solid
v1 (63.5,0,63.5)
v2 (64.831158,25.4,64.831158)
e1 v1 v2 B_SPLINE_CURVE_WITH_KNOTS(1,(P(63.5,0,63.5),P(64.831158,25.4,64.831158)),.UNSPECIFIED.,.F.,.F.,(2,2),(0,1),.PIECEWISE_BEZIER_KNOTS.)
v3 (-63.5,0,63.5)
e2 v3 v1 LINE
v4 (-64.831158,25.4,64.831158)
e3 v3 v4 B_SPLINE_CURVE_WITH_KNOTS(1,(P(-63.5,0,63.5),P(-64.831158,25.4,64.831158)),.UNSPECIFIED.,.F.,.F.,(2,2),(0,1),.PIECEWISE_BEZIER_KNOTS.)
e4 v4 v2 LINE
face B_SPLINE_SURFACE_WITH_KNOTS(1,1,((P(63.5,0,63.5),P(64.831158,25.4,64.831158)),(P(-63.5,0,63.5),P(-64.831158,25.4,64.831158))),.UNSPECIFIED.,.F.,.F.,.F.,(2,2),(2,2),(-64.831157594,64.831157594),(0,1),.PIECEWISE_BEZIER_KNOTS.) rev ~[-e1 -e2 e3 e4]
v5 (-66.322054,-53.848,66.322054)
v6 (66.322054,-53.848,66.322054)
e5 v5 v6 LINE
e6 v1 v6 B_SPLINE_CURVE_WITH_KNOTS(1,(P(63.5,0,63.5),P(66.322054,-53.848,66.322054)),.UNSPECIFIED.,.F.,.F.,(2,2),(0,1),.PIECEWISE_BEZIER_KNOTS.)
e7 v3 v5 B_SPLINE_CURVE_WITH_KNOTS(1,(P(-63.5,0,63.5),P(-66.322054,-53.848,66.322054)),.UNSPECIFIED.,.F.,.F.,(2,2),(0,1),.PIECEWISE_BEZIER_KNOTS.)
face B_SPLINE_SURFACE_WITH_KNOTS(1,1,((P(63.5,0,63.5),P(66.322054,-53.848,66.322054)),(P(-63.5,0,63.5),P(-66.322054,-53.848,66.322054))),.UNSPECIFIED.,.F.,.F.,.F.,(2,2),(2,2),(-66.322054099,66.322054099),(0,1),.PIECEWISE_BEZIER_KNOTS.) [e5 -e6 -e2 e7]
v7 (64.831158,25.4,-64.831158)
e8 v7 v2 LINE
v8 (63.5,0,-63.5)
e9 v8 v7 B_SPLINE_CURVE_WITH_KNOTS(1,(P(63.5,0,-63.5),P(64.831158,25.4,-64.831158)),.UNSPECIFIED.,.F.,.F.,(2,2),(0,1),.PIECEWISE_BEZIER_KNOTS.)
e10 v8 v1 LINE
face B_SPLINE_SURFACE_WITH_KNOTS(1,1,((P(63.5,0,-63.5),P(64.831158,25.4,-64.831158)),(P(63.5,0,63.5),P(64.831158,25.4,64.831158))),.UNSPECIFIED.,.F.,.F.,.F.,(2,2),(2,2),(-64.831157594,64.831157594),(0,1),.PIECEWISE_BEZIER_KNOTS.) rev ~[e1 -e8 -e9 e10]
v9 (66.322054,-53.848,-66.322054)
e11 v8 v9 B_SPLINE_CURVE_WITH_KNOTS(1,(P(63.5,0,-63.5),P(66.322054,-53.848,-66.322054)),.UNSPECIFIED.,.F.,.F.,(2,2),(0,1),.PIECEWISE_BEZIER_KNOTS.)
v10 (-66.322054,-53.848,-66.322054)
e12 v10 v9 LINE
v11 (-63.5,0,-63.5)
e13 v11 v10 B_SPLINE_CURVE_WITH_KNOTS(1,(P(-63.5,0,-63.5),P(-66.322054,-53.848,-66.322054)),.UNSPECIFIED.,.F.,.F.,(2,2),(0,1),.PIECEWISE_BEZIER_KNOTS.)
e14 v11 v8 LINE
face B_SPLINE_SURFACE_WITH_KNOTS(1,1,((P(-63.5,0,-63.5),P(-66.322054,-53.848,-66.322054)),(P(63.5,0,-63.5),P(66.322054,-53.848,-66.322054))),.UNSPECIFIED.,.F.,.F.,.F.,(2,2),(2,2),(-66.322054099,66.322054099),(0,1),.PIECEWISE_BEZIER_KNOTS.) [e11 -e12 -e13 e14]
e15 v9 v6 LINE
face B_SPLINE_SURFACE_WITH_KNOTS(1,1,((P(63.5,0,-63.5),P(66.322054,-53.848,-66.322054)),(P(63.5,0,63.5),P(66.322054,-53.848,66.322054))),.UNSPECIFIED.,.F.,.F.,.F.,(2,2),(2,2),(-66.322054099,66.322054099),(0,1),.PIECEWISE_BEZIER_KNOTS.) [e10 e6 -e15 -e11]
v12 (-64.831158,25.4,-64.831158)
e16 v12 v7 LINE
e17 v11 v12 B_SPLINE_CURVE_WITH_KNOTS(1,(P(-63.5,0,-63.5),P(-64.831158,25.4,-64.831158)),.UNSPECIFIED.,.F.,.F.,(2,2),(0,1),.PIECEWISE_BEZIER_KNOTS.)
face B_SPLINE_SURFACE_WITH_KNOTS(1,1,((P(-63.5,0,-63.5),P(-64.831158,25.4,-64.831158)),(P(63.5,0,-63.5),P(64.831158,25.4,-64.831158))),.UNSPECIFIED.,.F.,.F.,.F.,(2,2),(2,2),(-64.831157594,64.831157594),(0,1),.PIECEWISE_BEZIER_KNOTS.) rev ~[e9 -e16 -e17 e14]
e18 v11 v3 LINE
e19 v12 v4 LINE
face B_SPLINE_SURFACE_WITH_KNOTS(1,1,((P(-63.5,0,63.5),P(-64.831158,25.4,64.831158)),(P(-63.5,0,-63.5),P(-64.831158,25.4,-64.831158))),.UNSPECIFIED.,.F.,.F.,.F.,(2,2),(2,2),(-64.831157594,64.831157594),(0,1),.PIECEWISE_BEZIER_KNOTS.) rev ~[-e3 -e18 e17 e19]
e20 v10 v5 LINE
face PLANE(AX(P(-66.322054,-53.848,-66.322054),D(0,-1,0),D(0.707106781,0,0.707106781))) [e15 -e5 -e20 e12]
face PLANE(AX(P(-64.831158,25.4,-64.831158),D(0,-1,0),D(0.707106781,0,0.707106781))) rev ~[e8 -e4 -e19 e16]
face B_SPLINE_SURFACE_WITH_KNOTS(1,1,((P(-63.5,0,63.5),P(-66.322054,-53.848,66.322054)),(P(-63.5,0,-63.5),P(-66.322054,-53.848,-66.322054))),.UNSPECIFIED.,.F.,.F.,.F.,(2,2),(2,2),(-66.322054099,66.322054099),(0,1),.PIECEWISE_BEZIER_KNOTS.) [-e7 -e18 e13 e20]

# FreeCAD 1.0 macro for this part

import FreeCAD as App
import Part
import Sketcher
Q = App.Units.Quantity

doc = App.newDocument("Part")
body = doc.addObject("PartDesign::Body", "Body")

# Sketch on XZ plane
sketch1 = doc.addObject("Sketcher::SketchObject", "Sketch")
body.addObject(sketch1)
sketch1.AttachmentSupport = (doc.XZ_Plane, [""])
sketch1.MapMode = "FlatFace"
sketch1.addGeometry(Part.LineSegment(App.Vector(-64, 64, 0), App.Vector(-64, -64, 0)), False)
sketch1.addGeometry(Part.LineSegment(App.Vector(-64, -64, 0), App.Vector(64, -64, 0)), False)
sketch1.addGeometry(Part.LineSegment(App.Vector(64, -64, 0), App.Vector(64, 64, 0)), False)
sketch1.addGeometry(Part.LineSegment(App.Vector(64, 64, 0), App.Vector(-64, 64, 0)), False)
sketch1.addConstraint(Sketcher.Constraint("Coincident", 0, 2, 1, 1))
sketch1.addConstraint(Sketcher.Constraint("Coincident", 1, 2, 2, 1))
sketch1.addConstraint(Sketcher.Constraint("Coincident", 2, 2, 3, 1))
sketch1.addConstraint(Sketcher.Constraint("Coincident", 3, 2, 0, 1))
sketch1.addConstraint(Sketcher.Constraint("Vertical", 0))
sketch1.addConstraint(Sketcher.Constraint("Horizontal", 1))
sketch1.addConstraint(Sketcher.Constraint("Vertical", 2))
sketch1.addConstraint(Sketcher.Constraint("Horizontal", 3))
sketch1.addConstraint(Sketcher.Constraint("Symmetric", 0, 2, 2, 2, -1, 1))
sketch1.addConstraint(Sketcher.Constraint("Equal", 3, 0))
sketch1.addConstraint(Sketcher.Constraint("DistanceX", 1, 1, 1, 2, Q("5 in")))
pad1 = doc.addObject("PartDesign::Pad", "Pad")
body.addObject(pad1)
pad1.Profile = sketch1
pad1.Length = Q("2.12 in")
pad1.TaperAngle = 3
pad2 = doc.addObject("PartDesign::Pad", "Pad001")
body.addObject(pad2)
pad2.Profile = sketch1
pad2.Length = Q("1 in")
pad2.Reversed = True
pad2.TaperAngle = 3

doc.recompute()
